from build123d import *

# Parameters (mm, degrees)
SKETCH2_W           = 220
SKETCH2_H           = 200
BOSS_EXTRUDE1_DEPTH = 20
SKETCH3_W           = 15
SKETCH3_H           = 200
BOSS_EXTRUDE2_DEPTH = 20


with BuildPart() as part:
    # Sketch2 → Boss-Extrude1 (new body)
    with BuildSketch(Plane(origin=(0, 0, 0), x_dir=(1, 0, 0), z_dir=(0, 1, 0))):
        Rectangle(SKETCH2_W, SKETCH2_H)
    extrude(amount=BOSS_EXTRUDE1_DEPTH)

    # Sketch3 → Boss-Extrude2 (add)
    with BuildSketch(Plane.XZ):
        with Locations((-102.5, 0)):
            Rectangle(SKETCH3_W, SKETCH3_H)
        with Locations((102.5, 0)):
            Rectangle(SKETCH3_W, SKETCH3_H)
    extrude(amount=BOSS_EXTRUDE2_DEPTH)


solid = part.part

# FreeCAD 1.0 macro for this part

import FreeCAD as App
import Part
import Sketcher

V = App.Vector
Q = App.Units.Quantity

doc = App.newDocument("Part")
body = doc.addObject("PartDesign::Body", "Body")

sketch1 = doc.addObject("Sketcher::SketchObject", "Sketch")
body.addObject(sketch1)
sketch1.AttachmentSupport = (doc.XZ_Plane, [""])
sketch1.MapMode = "FlatFace"
sketch1.addGeometry([
    Part.LineSegment(V(-110, -100, 0), V(-110, 100, 0)),
    Part.LineSegment(V(-110, 100, 0), V(110, 100, 0)),
    Part.LineSegment(V(110, 100, 0), V(110, -100, 0)),
    Part.LineSegment(V(110, -100, 0), V(-110, -100, 0)),
], False)
sketch1.addConstraint([
    Sketcher.Constraint("Coincident", 0, 2, 1, 1),
    Sketcher.Constraint("Coincident", 1, 2, 2, 1),
    Sketcher.Constraint("Coincident", 2, 2, 3, 1),
    Sketcher.Constraint("Coincident", 3, 2, 0, 1),
    Sketcher.Constraint("Vertical", 0),
    Sketcher.Constraint("Horizontal", 1),
    Sketcher.Constraint("Vertical", 2),
    Sketcher.Constraint("Horizontal", 3),
    Sketcher.Constraint("Symmetric", 0, 2, 2, 2, -1, 1),
    Sketcher.Constraint("DistanceX", 1, 1, 1, 2, Q("220 mm")),
    Sketcher.Constraint("DistanceY", 0, 1, 0, 2, Q("200 mm")),
])
pad1 = doc.addObject("PartDesign::Pad", "Pad")
body.addObject(pad1)
pad1.Profile = sketch1
pad1.Length = 20
pad1.Reversed = True

sketch2 = doc.addObject("Sketcher::SketchObject", "Sketch001")
body.addObject(sketch2)
sketch2.AttachmentSupport = (doc.XZ_Plane, [""])
sketch2.MapMode = "FlatFace"
sketch2.addGeometry([
    Part.LineSegment(V(-110, 100, 0), V(-110, -100, 0)),
    Part.LineSegment(V(-110, -100, 0), V(-95, -100, 0)),
    Part.LineSegment(V(-95, -100, 0), V(-95, 100, 0)),
    Part.LineSegment(V(-95, 100, 0), V(-110, 100, 0)),
    Part.LineSegment(V(95, 100, 0), V(95, -100, 0)),
    Part.LineSegment(V(95, -100, 0), V(110, -100, 0)),
    Part.LineSegment(V(110, -100, 0), V(110, 100, 0)),
    Part.LineSegment(V(110, 100, 0), V(95, 100, 0)),
], False)
sketch2.addConstraint([
    Sketcher.Constraint("Coincident", 0, 2, 1, 1),
    Sketcher.Constraint("Coincident", 1, 2, 2, 1),
    Sketcher.Constraint("Coincident", 2, 2, 3, 1),
    Sketcher.Constraint("Coincident", 3, 2, 0, 1),
    Sketcher.Constraint("Coincident", 4, 2, 5, 1),
    Sketcher.Constraint("Coincident", 5, 2, 6, 1),
    Sketcher.Constraint("Coincident", 6, 2, 7, 1),
    Sketcher.Constraint("Coincident", 7, 2, 4, 1),
    Sketcher.Constraint("Vertical", 0),
    Sketcher.Constraint("Horizontal", 1),
    Sketcher.Constraint("Vertical", 2),
    Sketcher.Constraint("Horizontal", 3),
    Sketcher.Constraint("Vertical", 4),
    Sketcher.Constraint("Horizontal", 5),
    Sketcher.Constraint("Vertical", 6),
    Sketcher.Constraint("Horizontal", 7),
    Sketcher.Constraint("Symmetric", 2, 2, 4, 2, -1, 1),
    Sketcher.Constraint("Symmetric", 0, 2, 6, 2, -1, 1),
    Sketcher.Constraint("Horizontal", 1, 2, 4, 2),
    Sketcher.Constraint("DistanceX", 1, 1, 1, 2, Q("15 mm")),
    Sketcher.Constraint("DistanceY", 0, 2, 0, 1, Q("200 mm")),
    Sketcher.Constraint("DistanceX", 0, 2, -1, 1, Q("110 mm")),
])
pad2 = doc.addObject("PartDesign::Pad", "Pad001")
body.addObject(pad2)
pad2.Profile = sketch2
pad2.Length = 20

doc.recompute()
